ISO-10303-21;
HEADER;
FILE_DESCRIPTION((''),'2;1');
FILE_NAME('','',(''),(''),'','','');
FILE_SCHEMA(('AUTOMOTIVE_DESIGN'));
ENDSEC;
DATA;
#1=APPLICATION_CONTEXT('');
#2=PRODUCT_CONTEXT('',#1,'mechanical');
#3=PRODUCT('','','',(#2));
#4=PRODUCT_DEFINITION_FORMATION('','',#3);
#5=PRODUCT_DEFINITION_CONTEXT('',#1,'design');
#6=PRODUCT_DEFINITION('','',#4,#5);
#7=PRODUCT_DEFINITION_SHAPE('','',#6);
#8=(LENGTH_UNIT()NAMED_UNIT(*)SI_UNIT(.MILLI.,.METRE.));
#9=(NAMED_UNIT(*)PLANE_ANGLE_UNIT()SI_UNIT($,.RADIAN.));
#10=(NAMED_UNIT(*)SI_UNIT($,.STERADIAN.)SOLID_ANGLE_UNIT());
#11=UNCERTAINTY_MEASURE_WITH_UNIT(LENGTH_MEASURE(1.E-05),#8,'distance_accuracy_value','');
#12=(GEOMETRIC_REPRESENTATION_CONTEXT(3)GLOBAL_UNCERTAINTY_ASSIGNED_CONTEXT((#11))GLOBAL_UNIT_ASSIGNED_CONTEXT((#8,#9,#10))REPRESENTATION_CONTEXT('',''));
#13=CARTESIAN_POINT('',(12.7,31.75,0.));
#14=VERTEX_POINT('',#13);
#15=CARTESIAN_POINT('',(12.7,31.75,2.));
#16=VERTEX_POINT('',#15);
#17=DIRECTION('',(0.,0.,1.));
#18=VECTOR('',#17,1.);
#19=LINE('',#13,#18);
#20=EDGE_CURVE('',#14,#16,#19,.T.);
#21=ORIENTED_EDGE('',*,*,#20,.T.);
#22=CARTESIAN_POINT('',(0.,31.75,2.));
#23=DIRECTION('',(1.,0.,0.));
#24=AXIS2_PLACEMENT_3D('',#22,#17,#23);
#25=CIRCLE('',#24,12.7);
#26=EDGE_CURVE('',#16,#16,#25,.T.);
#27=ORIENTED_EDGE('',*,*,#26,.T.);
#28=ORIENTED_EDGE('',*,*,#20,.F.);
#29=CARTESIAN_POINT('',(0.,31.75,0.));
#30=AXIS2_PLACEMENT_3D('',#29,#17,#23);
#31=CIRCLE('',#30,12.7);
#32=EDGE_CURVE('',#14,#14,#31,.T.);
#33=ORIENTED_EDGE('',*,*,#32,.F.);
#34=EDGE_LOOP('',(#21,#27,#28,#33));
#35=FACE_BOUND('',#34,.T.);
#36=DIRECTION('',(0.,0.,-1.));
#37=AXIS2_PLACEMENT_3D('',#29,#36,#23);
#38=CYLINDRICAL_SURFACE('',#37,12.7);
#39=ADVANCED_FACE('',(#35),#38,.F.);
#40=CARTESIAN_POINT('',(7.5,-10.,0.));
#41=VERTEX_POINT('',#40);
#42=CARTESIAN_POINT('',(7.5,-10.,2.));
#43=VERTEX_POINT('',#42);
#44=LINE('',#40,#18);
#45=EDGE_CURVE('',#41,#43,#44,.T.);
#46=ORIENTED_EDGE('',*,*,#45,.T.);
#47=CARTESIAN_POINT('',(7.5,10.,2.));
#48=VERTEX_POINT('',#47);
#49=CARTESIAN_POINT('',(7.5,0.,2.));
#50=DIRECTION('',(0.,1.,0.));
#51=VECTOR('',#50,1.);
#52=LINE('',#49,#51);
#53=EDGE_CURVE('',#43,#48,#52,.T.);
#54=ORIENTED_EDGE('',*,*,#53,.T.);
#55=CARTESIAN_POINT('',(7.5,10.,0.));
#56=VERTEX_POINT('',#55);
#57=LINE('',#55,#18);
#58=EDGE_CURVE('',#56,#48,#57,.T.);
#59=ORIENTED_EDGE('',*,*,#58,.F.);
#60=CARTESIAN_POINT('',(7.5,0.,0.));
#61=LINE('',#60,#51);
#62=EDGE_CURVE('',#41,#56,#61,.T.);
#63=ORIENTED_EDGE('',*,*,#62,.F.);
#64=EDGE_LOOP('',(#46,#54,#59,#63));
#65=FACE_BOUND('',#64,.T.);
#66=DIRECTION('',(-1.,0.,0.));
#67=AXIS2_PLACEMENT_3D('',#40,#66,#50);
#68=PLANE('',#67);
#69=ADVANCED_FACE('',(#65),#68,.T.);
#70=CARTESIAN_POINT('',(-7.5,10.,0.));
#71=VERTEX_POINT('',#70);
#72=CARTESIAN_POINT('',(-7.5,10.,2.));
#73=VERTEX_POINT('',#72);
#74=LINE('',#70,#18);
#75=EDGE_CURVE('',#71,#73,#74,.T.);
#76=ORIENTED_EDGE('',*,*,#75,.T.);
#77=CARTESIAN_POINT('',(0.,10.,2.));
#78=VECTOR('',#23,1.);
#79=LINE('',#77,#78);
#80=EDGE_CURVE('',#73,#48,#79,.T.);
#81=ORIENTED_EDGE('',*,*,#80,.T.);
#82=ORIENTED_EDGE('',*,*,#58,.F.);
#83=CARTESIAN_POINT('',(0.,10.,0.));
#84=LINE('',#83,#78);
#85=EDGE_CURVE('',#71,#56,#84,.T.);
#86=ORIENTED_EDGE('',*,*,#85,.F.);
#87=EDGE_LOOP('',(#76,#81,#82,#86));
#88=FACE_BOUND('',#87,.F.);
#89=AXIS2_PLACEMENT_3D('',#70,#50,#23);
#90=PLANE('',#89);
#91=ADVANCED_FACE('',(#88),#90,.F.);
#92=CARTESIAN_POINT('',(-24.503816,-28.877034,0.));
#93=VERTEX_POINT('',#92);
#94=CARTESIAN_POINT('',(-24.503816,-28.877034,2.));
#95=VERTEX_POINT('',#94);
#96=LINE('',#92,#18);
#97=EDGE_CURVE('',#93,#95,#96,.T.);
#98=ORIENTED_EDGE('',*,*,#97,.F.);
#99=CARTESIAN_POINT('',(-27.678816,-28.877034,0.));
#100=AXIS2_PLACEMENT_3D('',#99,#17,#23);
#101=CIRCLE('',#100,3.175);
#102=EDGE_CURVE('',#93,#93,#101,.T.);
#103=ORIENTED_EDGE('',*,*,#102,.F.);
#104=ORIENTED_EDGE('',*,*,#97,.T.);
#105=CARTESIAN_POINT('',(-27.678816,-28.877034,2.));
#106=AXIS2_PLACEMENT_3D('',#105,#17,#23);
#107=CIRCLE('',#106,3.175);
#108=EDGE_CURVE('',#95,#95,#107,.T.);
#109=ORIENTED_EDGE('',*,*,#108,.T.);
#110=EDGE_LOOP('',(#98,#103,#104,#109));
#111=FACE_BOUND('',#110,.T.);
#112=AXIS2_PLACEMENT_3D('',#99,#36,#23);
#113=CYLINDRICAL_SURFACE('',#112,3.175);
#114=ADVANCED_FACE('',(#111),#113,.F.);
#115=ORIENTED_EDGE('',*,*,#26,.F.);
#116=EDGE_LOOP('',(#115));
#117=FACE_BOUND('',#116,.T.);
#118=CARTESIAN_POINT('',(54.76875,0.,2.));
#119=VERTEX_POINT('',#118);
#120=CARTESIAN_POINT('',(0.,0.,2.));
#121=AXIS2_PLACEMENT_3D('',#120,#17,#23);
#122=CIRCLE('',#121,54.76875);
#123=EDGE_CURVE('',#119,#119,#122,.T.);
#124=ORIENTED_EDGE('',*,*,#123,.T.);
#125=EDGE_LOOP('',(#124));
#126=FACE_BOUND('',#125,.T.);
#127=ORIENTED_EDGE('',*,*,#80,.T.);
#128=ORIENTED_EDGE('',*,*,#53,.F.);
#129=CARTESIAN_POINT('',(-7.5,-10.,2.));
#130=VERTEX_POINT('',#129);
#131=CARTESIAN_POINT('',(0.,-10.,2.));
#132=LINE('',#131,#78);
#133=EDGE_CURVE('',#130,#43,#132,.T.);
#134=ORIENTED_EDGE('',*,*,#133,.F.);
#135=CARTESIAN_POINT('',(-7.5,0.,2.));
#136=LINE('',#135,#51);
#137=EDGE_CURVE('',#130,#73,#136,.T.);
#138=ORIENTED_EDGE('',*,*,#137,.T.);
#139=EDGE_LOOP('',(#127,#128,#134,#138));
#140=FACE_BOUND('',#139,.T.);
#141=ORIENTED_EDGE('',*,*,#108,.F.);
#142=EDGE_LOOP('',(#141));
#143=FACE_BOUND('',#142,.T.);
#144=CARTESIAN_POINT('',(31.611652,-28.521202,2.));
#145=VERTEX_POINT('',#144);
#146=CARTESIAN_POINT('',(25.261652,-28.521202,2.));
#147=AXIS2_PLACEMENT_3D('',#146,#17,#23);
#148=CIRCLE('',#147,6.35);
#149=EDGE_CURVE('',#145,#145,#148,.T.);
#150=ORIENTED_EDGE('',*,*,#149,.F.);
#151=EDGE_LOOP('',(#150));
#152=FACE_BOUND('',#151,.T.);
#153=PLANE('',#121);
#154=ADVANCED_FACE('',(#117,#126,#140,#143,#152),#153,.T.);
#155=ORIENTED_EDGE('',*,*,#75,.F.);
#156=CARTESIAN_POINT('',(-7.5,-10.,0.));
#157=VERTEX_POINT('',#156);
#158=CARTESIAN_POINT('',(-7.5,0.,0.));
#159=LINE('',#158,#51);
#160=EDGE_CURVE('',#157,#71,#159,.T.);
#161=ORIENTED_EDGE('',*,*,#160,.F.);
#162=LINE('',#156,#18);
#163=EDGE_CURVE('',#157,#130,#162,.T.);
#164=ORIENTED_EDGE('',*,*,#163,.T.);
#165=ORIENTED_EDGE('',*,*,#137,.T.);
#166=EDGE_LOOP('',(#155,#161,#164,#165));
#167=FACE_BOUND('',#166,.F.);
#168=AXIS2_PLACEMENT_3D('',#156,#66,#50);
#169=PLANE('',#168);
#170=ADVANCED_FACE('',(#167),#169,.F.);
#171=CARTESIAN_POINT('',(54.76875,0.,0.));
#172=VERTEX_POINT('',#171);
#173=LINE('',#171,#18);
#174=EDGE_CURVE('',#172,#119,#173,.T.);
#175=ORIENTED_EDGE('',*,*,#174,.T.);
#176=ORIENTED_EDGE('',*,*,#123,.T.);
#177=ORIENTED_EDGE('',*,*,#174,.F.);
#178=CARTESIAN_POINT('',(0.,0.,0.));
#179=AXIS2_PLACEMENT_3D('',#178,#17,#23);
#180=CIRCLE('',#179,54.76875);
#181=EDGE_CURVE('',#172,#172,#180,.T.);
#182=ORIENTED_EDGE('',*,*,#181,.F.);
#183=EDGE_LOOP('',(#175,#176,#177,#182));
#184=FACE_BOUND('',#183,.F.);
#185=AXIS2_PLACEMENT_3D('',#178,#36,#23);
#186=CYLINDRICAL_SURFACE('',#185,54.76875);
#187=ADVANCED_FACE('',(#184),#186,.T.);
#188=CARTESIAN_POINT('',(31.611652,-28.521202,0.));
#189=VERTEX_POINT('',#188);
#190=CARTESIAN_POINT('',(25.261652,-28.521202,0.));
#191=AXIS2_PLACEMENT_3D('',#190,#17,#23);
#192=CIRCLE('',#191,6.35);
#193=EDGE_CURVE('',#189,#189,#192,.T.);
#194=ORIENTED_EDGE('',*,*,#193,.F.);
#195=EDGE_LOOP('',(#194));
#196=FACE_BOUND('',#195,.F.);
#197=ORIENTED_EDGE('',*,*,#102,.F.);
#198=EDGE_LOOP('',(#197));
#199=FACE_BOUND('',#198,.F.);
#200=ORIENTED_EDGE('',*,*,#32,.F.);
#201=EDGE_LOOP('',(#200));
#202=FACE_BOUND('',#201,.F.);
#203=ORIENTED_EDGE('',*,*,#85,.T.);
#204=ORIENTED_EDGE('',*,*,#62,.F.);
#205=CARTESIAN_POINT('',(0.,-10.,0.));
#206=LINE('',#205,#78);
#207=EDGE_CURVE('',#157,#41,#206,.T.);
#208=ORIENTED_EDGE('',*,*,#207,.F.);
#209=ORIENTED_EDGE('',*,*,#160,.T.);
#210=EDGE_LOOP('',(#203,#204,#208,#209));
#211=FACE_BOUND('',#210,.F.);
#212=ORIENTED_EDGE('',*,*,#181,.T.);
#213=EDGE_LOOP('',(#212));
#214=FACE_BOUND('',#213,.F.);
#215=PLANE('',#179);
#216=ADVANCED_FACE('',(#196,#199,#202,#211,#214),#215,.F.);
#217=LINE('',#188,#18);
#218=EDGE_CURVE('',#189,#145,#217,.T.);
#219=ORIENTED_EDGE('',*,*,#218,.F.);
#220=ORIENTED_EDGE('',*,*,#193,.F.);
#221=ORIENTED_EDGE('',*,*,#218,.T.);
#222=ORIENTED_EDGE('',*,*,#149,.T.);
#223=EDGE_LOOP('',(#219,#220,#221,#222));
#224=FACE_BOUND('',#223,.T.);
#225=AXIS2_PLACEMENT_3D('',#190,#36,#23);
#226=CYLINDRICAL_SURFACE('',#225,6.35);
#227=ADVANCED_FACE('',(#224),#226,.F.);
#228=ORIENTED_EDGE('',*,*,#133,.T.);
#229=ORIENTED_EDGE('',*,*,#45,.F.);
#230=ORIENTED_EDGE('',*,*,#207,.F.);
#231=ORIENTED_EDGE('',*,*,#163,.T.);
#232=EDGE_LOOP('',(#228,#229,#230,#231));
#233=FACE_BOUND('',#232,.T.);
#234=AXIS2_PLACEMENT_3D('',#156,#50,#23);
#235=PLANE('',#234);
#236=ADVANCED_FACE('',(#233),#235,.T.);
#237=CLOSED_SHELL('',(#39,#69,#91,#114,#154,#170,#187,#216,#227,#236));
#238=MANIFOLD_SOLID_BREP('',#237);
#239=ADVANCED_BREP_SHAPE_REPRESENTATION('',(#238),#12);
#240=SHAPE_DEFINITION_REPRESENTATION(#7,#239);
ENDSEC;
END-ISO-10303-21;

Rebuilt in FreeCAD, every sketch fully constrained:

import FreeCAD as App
import Part
import Sketcher
from FreeCAD import Vector
Q = App.Units.Quantity


def add_polygon(sketch, points):
    """Adds a closed chain of lines whose ends are joined by coincident constraints."""
    first, n = sketch.GeometryCount, len(points)
    for a, b in zip(points, points[1:] + points[:1]):
        sketch.addGeometry(Part.LineSegment(App.Vector(*a, 0), App.Vector(*b, 0)), False)
    for i in range(n):
        sketch.addConstraint(Sketcher.Constraint("Coincident", first + i, 2, first + (i + 1) % n, 1))

doc = App.newDocument("Part")
body = doc.addObject("PartDesign::Body", "Body")

# Sketch on XY plane
sketch1 = doc.addObject("Sketcher::SketchObject", "Sketch")
body.addObject(sketch1)
sketch1.AttachmentSupport = (doc.XY_Plane, [""])
sketch1.MapMode = "FlatFace"
sketch1.addGeometry(Part.Circle(Vector(0, 0, 0), Vector(0, 0, 1), 54.76875), False)  # 0
sketch1.addGeometry(Part.Circle(Vector(-27.678816, -28.877034, 0), Vector(0, 0, 1), 3.175), False)  # 1
add_polygon(sketch1, [(7.5, -10), (-7.5, -10), (-7.5, 10), (7.5, 10)])  # lines 2-5
sketch1.addGeometry(Part.Circle(Vector(25.261652, -28.521202, 0), Vector(0, 0, 1), 6.35), False)  # 6
sketch1.addGeometry(Part.Circle(Vector(0, 31.75, 0), Vector(0, 0, 1), 12.7), False)  # 7
sketch1.addConstraint(Sketcher.Constraint("Horizontal", 2))
sketch1.addConstraint(Sketcher.Constraint("Vertical", 3))
sketch1.addConstraint(Sketcher.Constraint("Horizontal", 4))
sketch1.addConstraint(Sketcher.Constraint("Vertical", 5))
sketch1.addConstraint(Sketcher.Constraint("Coincident", 0, 3, -1, 1))
sketch1.addConstraint(Sketcher.Constraint("Symmetric", 2, 2, 4, 2, -1, 1))
sketch1.addConstraint(Sketcher.Constraint("PointOnObject", 7, 3, -2))
sketch1.addConstraint(Sketcher.Constraint("Diameter", 7, Q("1 in")))
sketch1.addConstraint(Sketcher.Constraint("Diameter", 6, Q("0.5 in")))
sketch1.addConstraint(Sketcher.Constraint("Diameter", 1, Q("0.25 in")))
sketch1.addConstraint(Sketcher.Constraint("Diameter", 0, Q("4.3125 in")))
sketch1.addConstraint(Sketcher.Constraint("DistanceY", -1, 1, 7, 3, Q("1.25 in")))
sketch1.addConstraint(Sketcher.Constraint("DistanceX", 2, 2, 2, 1, Q("15 mm")))
sketch1.addConstraint(Sketcher.Constraint("DistanceY", 3, 1, 3, 2, Q("20 mm")))
sketch1.addConstraint(Sketcher.Constraint("DistanceY", 6, 3, -1, 1, Q("28.521202 mm")))
sketch1.addConstraint(Sketcher.Constraint("DistanceX", 1, 3, 6, 3, Q("52.940468 mm")))
sketch1.addConstraint(Sketcher.Constraint("DistanceY", 1, 3, 6, 3, Q("0.355832 mm")))
sketch1.addConstraint(Sketcher.Constraint("DistanceX", 2, 2, 6, 3, Q("32.761652 mm")))
pad1 = doc.addObject("PartDesign::Pad", "Pad")
body.addObject(pad1)
pad1.Profile = sketch1
pad1.Length = 2

doc.recompute()
